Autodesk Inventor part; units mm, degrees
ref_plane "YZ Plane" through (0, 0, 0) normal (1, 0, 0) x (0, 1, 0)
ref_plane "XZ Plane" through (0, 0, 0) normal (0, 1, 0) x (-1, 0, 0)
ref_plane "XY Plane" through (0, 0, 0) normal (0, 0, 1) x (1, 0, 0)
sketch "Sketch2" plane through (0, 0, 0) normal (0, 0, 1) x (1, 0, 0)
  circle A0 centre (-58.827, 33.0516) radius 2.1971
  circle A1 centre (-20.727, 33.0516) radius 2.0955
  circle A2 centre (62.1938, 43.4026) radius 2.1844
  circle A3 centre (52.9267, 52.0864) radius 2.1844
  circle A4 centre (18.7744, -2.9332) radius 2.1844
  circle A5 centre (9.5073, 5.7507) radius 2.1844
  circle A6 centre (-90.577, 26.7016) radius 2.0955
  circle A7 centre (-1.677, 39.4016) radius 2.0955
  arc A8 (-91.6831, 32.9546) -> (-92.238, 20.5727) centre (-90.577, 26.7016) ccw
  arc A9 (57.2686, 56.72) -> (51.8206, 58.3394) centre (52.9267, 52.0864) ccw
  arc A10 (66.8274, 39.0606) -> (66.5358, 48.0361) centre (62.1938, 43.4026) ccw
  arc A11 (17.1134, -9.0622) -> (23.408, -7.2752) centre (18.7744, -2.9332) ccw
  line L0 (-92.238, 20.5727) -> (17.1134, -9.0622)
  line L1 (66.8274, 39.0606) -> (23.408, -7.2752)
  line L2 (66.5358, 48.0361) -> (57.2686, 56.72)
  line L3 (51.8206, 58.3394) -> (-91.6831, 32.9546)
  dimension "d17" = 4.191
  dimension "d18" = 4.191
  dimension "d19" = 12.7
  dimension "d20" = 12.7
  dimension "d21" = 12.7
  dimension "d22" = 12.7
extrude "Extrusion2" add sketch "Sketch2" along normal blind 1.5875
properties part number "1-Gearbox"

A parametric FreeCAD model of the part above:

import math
import FreeCAD as App
import Part
import Sketcher
Q = App.Units.Quantity

doc = App.newDocument("Part")
body = doc.addObject("PartDesign::Body", "Body")

# Sketch on XY plane
sketch1 = body.newObject("Sketcher::SketchObject", "Sketch")
sketch1.AttachmentSupport = (doc.getObject("XY_Plane"), [""])
sketch1.MapMode = "FlatFace"
sketch1.addGeometry([
    Part.LineSegment(App.Vector(51.8, 58.3, 0), App.Vector(-91.7, 33, 0)),  # 0
    Part.ArcOfCircle(Part.Circle(App.Vector(-90.6, 26.7, 0), App.Vector(0, 0, 1), 6.4), math.radians(100), math.radians(255)),  # 1
    Part.LineSegment(App.Vector(-92.2, 20.6, 0), App.Vector(17.1, -9.1, 0)),  # 2
    Part.ArcOfCircle(Part.Circle(App.Vector(18.8, -2.9, 0), App.Vector(0, 0, 1), 6.4), math.radians(-105), math.radians(-43)),  # 3
    Part.LineSegment(App.Vector(23.4, -7.3, 0), App.Vector(66.8, 39.1, 0)),  # 4
    Part.ArcOfCircle(Part.Circle(App.Vector(62.2, 43.4, 0), App.Vector(0, 0, 1), 6.4), math.radians(-43), math.radians(47)),  # 5
    Part.LineSegment(App.Vector(66.5, 48, 0), App.Vector(57.3, 56.7, 0)),  # 6
    Part.ArcOfCircle(Part.Circle(App.Vector(52.9, 52.1, 0), App.Vector(0, 0, 1), 6.3), math.radians(47), math.radians(100)),  # 7
    Part.Circle(App.Vector(18.8, -2.9, 0), App.Vector(0, 0, 1), 2.2),  # 8
    Part.Circle(App.Vector(9.5, 5.8, 0), App.Vector(0, 0, 1), 2.2),  # 9
    Part.Circle(App.Vector(-90.6, 26.7, 0), App.Vector(0, 0, 1), 2.1),  # 10
    Part.Circle(App.Vector(-58.8, 33.1, 0), App.Vector(0, 0, 1), 2.2),  # 11
    Part.Circle(App.Vector(-20.7, 33.1, 0), App.Vector(0, 0, 1), 2.1),  # 12
    Part.Circle(App.Vector(-1.7, 39.4, 0), App.Vector(0, 0, 1), 2.1),  # 13
    Part.Circle(App.Vector(62.2, 43.4, 0), App.Vector(0, 0, 1), 2.2),  # 14
    Part.Circle(App.Vector(52.9, 52.1, 0), App.Vector(0, 0, 1), 2.2),  # 15
], False)
sketch1.addConstraint([
    Sketcher.Constraint("Tangent", 0, 2, 1, 1),
    Sketcher.Constraint("Tangent", 1, 2, 2, 1),
    Sketcher.Constraint("Tangent", 2, 2, 3, 1),
    Sketcher.Constraint("Tangent", 3, 2, 4, 1),
    Sketcher.Constraint("Tangent", 4, 2, 5, 1),
    Sketcher.Constraint("Tangent", 5, 2, 6, 1),
    Sketcher.Constraint("Tangent", 6, 2, 7, 1),
    Sketcher.Constraint("Tangent", 7, 2, 0, 1),
    Sketcher.Constraint("Coincident", 8, 3, 3, 3),
    Sketcher.Constraint("Coincident", 10, 3, 1, 3),
    Sketcher.Constraint("Coincident", 14, 3, 5, 3),
    Sketcher.Constraint("Coincident", 15, 3, 7, 3),
    Sketcher.Constraint("Equal", 1, 3),
    Sketcher.Constraint("Equal", 3, 5),
    Sketcher.Constraint("Equal", 5, 7),
    Sketcher.Constraint("Equal", 8, 9),
    Sketcher.Constraint("Equal", 10, 12),
    Sketcher.Constraint("Equal", 12, 13),
    Sketcher.Constraint("Equal", 9, 14),
    Sketcher.Constraint("Equal", 14, 15),
    Sketcher.Constraint("Perpendicular", 4, 6),
    Sketcher.Constraint("Horizontal", 11, 3, 12, 3),
    Sketcher.Constraint("Radius", 1, Q("0.25 in")),
    Sketcher.Constraint("Diameter", 10, Q("0.165 in")),
    Sketcher.Constraint("Distance", 6, Q("0.5 in")),
    Sketcher.Constraint("Diameter", 8, Q("0.172 in")),
    Sketcher.Constraint("Diameter", 11, Q("0.173 in")),
    Sketcher.Constraint("Distance", 4, Q("2.5 in")),
    Sketcher.Constraint("DistanceX", 11, 3, 12, 3, Q("1.5 in")),
    Sketcher.Constraint("Angle", 4, Q("46.861 deg")),
    Sketcher.Constraint("DistanceX", 1, 3, 11, 3, Q("1.25 in")),
    Sketcher.Constraint("DistanceY", 1, 3, 11, 3, Q("0.25 in")),
    Sketcher.Constraint("DistanceX", 12, 3, 13, 3, Q("0.75 in")),
    Sketcher.Constraint("DistanceY", 12, 3, 13, 3, Q("0.25 in")),
    Sketcher.Constraint("DistanceX", -1, 1, 4, 2, Q("2.631 in")),
    Sketcher.Constraint("DistanceX", -1, 1, 9, 3, Q("0.3743 in")),
    Sketcher.Constraint("DistanceY", -1, 1, 9, 3, Q("0.2264 in")),
    Sketcher.Constraint("DistanceX", 1, 3, 5, 3, Q("6.0146 in")),
    Sketcher.Constraint("DistanceY", 1, 3, 7, 3, Q("0.9994 in")),
    Sketcher.Constraint("DistanceY", -1, 1, 1, 3, 26.7016),
])
pad1 = body.newObject("PartDesign::Pad", "Pad")
pad1.Profile = sketch1
pad1.Length = Q("0.0625 in")

doc.recompute()
